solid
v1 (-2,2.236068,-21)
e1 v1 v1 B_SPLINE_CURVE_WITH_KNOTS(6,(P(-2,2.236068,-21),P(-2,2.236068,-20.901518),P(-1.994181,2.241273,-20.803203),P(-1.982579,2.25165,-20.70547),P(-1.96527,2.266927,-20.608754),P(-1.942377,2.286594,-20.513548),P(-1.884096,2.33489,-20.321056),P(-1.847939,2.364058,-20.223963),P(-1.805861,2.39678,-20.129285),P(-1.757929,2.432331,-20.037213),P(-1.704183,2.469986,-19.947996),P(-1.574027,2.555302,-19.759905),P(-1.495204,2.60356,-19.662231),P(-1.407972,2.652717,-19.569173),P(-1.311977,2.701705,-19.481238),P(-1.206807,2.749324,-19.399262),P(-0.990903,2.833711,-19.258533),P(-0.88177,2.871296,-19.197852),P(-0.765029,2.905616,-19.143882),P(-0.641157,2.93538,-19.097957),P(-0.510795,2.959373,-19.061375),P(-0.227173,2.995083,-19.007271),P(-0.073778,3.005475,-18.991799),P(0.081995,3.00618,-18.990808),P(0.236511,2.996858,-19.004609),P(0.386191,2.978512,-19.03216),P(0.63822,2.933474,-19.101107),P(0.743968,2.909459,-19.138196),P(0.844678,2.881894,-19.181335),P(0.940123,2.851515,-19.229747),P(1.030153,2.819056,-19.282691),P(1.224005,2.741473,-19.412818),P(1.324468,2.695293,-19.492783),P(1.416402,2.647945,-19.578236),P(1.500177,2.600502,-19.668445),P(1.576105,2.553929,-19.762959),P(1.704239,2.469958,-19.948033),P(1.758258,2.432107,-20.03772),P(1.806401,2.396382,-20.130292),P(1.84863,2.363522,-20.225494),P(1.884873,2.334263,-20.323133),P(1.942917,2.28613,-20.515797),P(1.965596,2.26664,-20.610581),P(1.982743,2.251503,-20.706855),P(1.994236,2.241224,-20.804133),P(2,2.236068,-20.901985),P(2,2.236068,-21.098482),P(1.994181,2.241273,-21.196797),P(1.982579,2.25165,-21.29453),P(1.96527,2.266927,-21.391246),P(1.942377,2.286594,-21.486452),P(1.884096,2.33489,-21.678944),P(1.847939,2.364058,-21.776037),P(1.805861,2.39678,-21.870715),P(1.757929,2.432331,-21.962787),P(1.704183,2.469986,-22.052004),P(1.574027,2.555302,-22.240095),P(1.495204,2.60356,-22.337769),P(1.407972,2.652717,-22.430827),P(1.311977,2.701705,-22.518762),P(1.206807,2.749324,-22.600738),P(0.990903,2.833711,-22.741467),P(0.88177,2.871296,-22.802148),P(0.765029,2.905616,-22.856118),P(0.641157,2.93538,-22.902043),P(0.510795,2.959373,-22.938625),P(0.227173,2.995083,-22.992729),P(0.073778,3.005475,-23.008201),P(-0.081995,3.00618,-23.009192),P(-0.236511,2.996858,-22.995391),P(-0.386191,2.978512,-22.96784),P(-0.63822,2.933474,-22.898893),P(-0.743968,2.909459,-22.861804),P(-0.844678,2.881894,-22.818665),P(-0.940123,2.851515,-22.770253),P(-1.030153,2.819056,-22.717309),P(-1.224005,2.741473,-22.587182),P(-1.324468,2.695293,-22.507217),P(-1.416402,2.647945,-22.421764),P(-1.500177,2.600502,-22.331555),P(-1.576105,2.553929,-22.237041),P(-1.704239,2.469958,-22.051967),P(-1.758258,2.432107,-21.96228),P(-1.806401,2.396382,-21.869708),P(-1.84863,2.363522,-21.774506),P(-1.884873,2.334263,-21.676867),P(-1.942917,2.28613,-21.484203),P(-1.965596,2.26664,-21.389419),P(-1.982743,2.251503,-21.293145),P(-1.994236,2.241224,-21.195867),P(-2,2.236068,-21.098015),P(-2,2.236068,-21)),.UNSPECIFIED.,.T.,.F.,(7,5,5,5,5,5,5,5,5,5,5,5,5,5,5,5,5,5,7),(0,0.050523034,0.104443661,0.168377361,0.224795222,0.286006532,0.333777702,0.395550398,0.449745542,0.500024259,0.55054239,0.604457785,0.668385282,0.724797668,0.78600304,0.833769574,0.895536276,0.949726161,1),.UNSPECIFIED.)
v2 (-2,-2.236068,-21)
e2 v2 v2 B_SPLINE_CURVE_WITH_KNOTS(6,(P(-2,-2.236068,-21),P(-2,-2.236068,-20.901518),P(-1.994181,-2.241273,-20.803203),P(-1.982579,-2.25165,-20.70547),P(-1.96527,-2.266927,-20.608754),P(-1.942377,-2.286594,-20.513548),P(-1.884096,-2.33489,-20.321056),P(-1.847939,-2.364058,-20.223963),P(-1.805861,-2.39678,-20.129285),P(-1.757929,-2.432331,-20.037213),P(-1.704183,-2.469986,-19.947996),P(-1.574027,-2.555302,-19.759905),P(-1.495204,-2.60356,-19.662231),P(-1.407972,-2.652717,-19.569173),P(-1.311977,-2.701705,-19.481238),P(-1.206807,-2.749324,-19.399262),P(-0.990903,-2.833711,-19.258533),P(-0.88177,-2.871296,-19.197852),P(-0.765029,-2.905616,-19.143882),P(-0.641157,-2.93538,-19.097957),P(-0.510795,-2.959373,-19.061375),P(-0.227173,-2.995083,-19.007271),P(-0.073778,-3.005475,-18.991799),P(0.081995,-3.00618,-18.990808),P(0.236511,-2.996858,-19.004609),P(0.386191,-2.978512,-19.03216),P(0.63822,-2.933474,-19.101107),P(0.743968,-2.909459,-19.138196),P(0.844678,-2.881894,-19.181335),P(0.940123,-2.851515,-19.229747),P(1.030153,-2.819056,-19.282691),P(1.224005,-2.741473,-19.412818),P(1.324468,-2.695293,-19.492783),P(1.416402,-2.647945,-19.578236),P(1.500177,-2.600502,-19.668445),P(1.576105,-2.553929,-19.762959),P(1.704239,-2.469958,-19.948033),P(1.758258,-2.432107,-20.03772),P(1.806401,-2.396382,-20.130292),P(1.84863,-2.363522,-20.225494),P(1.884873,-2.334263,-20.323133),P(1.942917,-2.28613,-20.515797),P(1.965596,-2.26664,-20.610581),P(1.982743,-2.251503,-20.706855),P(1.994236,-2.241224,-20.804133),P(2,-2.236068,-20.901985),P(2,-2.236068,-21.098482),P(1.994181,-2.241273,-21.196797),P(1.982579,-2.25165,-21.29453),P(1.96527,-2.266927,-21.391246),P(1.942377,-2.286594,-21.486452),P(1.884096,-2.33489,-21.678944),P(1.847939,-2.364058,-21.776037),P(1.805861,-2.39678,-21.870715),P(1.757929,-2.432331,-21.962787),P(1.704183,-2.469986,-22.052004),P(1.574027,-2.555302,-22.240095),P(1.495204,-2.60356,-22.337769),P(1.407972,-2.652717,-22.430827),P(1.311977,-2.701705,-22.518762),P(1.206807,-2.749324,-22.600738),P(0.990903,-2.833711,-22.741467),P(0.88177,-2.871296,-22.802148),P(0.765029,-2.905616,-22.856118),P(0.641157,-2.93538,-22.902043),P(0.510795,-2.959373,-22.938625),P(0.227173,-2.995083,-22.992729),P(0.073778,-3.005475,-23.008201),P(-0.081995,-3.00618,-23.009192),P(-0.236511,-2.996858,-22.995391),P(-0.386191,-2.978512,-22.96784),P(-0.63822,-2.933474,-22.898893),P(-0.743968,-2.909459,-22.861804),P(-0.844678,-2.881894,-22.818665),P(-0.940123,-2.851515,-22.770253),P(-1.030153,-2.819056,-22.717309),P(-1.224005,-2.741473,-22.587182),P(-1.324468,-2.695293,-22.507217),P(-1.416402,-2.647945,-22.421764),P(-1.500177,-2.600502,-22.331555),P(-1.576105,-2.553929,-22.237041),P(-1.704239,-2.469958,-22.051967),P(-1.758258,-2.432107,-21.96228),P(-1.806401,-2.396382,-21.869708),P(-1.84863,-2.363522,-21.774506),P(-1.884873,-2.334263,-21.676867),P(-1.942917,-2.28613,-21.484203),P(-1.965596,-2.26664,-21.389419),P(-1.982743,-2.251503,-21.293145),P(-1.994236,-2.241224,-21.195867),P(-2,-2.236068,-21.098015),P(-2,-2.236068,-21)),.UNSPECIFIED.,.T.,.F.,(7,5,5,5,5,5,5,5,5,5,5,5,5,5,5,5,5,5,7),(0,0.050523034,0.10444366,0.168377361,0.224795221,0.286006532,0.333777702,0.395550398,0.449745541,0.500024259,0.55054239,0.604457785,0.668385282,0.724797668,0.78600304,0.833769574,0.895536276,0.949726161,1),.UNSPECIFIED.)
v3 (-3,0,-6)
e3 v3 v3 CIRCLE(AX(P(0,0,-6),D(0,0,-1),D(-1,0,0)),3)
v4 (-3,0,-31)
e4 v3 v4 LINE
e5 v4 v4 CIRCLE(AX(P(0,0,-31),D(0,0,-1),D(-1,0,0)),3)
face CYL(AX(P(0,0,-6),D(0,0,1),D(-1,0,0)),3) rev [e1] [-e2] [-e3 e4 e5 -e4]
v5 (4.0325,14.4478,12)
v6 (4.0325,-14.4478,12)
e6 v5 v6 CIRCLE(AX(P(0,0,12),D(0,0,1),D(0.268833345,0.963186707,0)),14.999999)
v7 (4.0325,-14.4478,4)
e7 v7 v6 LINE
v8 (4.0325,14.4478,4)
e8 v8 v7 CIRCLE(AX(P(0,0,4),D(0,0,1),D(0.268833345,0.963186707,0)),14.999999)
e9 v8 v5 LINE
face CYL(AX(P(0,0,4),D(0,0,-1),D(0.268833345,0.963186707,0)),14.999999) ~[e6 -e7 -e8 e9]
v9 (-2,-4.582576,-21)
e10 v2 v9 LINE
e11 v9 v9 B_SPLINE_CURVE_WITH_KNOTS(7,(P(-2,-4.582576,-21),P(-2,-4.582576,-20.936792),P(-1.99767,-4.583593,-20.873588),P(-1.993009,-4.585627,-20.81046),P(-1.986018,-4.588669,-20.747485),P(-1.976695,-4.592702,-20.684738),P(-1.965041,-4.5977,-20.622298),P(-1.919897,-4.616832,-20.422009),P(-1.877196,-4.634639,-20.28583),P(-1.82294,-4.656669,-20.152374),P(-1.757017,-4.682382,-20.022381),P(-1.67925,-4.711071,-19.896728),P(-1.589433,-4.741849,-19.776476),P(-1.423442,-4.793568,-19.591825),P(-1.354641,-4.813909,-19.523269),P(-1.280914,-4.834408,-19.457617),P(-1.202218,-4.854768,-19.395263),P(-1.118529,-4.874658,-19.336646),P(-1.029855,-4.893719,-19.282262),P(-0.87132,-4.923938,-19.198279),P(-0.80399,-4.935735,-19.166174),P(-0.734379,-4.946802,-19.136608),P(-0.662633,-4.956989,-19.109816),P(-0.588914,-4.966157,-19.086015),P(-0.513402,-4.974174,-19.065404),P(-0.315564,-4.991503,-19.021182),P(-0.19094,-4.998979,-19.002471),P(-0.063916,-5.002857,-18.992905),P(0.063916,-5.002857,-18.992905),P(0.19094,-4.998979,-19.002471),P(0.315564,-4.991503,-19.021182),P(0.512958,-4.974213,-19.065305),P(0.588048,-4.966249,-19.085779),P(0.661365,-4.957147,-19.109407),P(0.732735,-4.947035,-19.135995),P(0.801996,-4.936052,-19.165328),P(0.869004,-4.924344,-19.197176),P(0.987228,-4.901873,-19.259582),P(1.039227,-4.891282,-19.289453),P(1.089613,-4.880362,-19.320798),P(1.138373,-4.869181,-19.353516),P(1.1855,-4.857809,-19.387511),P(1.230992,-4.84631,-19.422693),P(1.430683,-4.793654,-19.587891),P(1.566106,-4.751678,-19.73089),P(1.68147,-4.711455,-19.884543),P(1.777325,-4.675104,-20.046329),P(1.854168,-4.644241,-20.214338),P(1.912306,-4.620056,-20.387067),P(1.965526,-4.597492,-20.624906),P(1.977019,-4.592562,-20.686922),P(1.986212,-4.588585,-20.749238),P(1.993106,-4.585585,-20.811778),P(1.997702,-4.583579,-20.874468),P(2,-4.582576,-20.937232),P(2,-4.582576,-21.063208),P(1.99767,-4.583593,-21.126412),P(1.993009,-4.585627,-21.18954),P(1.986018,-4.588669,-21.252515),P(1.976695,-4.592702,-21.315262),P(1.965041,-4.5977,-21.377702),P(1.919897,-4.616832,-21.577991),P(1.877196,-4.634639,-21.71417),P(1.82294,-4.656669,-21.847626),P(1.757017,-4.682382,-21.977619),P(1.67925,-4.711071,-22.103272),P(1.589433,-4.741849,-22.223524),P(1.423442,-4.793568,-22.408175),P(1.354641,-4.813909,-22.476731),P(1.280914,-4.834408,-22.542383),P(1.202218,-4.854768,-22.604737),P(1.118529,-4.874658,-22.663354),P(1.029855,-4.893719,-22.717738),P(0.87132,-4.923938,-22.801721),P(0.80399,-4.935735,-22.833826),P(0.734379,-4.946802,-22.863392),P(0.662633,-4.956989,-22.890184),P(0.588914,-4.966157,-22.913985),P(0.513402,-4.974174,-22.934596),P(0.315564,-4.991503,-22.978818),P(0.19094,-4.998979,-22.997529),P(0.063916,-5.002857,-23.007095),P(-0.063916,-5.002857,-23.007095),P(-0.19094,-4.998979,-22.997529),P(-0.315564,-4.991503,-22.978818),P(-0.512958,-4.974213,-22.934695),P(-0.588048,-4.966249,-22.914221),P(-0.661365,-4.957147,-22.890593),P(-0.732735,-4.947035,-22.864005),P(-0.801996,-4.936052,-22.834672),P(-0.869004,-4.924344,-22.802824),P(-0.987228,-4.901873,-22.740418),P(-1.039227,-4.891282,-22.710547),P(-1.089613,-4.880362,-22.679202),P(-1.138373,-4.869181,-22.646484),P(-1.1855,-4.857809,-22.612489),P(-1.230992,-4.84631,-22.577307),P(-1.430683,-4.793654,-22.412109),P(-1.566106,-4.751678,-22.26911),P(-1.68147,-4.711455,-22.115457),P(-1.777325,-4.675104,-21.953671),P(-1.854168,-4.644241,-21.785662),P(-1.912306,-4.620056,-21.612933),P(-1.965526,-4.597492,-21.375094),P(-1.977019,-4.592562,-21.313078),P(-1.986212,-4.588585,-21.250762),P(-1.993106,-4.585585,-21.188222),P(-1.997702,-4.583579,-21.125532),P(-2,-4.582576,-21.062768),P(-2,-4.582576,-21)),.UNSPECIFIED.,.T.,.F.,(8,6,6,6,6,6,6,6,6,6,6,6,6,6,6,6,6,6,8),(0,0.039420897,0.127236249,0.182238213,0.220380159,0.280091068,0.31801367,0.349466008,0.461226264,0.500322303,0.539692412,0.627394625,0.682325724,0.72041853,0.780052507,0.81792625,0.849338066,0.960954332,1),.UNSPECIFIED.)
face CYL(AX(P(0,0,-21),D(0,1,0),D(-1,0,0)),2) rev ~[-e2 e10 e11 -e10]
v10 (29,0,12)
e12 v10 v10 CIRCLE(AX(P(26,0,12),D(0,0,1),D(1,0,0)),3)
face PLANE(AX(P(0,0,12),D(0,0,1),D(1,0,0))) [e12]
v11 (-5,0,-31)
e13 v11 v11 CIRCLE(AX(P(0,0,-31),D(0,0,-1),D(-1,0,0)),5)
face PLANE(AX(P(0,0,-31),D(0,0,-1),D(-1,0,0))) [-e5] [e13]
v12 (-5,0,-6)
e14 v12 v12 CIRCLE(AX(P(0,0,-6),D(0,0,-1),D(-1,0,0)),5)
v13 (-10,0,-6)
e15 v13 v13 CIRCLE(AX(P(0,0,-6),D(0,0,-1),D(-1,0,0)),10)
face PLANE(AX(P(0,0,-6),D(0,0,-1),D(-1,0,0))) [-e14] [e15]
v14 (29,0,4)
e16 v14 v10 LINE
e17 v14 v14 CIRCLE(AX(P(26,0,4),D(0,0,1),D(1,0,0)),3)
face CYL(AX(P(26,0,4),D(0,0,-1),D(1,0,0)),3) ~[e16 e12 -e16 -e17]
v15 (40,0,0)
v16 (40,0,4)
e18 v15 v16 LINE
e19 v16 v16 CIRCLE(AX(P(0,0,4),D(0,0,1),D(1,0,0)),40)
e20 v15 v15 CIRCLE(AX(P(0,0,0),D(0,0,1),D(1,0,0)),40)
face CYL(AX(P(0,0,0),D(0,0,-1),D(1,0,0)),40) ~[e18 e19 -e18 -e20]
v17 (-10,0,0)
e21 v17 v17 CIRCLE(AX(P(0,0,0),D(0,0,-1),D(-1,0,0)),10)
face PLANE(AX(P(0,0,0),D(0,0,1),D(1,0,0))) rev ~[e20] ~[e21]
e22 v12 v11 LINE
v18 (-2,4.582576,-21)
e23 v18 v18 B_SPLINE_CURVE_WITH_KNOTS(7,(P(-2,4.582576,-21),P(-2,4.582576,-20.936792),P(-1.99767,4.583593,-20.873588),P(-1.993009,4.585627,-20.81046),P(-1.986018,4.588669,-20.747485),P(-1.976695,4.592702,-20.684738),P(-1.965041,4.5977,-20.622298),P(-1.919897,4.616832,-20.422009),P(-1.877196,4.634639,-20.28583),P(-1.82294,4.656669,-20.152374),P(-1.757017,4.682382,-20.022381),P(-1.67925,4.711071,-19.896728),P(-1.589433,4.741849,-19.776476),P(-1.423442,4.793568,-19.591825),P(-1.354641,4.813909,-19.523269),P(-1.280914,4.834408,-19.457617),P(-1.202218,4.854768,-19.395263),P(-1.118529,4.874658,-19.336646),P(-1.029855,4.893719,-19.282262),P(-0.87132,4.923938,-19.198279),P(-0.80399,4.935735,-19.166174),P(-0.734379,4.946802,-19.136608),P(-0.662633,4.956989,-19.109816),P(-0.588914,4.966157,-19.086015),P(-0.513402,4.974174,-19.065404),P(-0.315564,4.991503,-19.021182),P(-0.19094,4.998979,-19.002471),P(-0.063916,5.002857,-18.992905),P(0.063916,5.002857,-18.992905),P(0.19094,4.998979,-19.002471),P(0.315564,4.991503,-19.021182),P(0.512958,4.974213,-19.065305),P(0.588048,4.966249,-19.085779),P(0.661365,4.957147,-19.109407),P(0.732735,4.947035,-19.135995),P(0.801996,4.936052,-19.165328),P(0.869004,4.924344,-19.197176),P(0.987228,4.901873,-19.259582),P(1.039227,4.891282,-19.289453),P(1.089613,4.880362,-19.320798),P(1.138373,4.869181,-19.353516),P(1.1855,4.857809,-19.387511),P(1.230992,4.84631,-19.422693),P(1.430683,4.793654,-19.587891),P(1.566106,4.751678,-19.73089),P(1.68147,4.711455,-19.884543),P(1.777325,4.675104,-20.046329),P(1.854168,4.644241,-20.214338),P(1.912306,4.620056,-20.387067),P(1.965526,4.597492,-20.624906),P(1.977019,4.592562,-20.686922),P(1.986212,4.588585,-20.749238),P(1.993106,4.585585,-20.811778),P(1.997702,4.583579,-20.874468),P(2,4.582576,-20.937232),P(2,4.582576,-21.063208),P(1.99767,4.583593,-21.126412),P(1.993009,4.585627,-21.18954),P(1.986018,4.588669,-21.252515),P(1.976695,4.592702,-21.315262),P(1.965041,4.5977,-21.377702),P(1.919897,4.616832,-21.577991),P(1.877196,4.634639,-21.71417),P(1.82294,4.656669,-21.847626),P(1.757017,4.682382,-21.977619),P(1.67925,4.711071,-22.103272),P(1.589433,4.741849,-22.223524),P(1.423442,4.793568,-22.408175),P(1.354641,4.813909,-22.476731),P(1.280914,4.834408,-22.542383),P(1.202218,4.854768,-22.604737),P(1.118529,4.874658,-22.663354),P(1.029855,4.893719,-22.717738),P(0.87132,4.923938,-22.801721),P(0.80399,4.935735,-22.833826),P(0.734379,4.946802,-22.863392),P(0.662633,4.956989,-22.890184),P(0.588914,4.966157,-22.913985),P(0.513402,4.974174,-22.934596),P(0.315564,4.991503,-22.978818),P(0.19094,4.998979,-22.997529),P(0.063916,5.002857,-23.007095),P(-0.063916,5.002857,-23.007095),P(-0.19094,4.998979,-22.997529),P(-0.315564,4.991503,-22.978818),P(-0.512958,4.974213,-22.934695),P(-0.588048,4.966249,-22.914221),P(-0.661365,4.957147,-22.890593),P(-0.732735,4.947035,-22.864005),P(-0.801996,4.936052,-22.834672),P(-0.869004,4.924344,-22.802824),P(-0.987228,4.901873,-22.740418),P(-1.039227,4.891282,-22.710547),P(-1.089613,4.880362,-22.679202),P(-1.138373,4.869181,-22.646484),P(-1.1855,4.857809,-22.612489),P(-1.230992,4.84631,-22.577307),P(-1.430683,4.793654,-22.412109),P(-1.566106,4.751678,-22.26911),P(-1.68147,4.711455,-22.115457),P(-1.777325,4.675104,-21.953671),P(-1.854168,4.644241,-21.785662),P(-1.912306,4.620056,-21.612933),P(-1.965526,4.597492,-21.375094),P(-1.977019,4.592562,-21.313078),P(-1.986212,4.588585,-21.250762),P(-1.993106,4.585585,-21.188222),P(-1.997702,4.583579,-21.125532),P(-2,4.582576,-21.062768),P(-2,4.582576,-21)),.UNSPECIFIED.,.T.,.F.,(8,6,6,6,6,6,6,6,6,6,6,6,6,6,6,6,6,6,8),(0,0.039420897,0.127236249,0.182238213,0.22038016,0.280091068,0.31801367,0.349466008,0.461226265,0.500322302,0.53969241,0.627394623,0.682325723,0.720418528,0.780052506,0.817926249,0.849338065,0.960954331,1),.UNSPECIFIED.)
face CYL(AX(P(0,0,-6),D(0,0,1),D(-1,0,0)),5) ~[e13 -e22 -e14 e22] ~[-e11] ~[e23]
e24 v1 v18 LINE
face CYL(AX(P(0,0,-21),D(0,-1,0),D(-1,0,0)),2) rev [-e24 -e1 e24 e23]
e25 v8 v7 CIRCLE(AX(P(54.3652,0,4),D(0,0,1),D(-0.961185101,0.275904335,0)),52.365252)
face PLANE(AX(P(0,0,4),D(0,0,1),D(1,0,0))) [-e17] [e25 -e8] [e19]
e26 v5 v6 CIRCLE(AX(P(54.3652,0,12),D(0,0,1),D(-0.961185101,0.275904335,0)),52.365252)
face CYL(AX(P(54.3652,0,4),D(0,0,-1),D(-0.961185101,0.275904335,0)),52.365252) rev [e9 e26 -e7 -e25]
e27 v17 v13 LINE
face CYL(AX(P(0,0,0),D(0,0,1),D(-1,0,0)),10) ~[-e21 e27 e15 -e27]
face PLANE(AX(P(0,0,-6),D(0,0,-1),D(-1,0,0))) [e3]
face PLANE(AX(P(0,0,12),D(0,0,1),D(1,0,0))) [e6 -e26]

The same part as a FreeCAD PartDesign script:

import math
import FreeCAD as App
import Part
import Sketcher
from FreeCAD import Vector
Q = App.Units.Quantity

doc = App.newDocument("Part")
body = doc.addObject("PartDesign::Body", "Body")

sketch1 = body.newObject("Sketcher::SketchObject", "Sketch")
sketch1.AttachmentSupport = (doc.getObject("XY_Plane"), [""])
sketch1.MapMode = "FlatFace"
sketch1.addGeometry(Part.Circle(Vector(0, 0, 0), Vector(0, 0, 1), 40), False)
sketch1.addConstraint([
    Sketcher.Constraint("Coincident", 0, 3, -1, 1),
    Sketcher.Constraint("Diameter", 0, Q("80 mm")),
])
pad1 = body.newObject("PartDesign::Pad", "Pad")
pad1.Profile = sketch1
pad1.Length = 4

sketch2 = body.newObject("Sketcher::SketchObject", "Sketch001")
sketch2.AttachmentSupport = (doc.getObject("XY_Plane"), [""])
sketch2.MapMode = "FlatFace"
sketch2.AttachmentOffset = App.Placement(Vector(0, 0, 4), App.Rotation())
sketch2.addGeometry([
    Part.ArcOfCircle(Part.Circle(Vector(54, 0, 0), Vector(0, 0, 1), 52), math.radians(164), math.radians(196)),
    Part.ArcOfCircle(Part.Circle(Vector(0, 0, 0), Vector(0, 0, 1), 15), math.radians(74), math.radians(286)),
], False)
sketch2.addConstraint([
    Sketcher.Constraint("Coincident", 0, 1, 1, 1),
    Sketcher.Constraint("Coincident", 1, 2, 0, 2),
    Sketcher.Constraint("Coincident", 1, 3, -1, 1),
    Sketcher.Constraint("PointOnObject", 0, 3, -1),
    Sketcher.Constraint("Radius", 1, Q("15 mm")),
    Sketcher.Constraint("Radius", 0, Q("52.3653 mm")),
    Sketcher.Constraint("DistanceX", -1, 1, 0, 3, Q("54.3652 mm")),
])
pad2 = body.newObject("PartDesign::Pad", "Pad001")
pad2.Profile = sketch2
pad2.Length = 8

sketch3 = body.newObject("Sketcher::SketchObject", "Sketch002")
sketch3.AttachmentSupport = (doc.getObject("XY_Plane"), [""])
sketch3.MapMode = "FlatFace"
sketch3.addGeometry(Part.Circle(Vector(0, 0, 0), Vector(0, 0, 1), 10), False)
sketch3.addConstraint([
    Sketcher.Constraint("Coincident", 0, 3, -1, 1),
    Sketcher.Constraint("Diameter", 0, Q("20 mm")),
])
pad3 = body.newObject("PartDesign::Pad", "Pad002")
pad3.Profile = sketch3
pad3.Length = 6
pad3.Reversed = True

sketch4 = body.newObject("Sketcher::SketchObject", "Sketch003")
sketch4.AttachmentSupport = (doc.getObject("XY_Plane"), [""])
sketch4.MapMode = "FlatFace"
sketch4.AttachmentOffset = App.Placement(Vector(0, 0, -6), App.Rotation())
sketch4.addGeometry([
    Part.Circle(Vector(0, 0, 0), Vector(0, 0, 1), 5),
    Part.Circle(Vector(0, 0, 0), Vector(0, 0, 1), 3),
], False)
sketch4.addConstraint([
    Sketcher.Constraint("Coincident", 0, 3, -1, 1),
    Sketcher.Constraint("Coincident", 1, 3, -1, 1),
    Sketcher.Constraint("Diameter", 0, Q("10 mm")),
    Sketcher.Constraint("Diameter", 1, Q("6 mm")),
])
pad4 = body.newObject("PartDesign::Pad", "Pad003")
pad4.Profile = sketch4
pad4.Length = 25
pad4.Reversed = True

sketch5 = body.newObject("Sketcher::SketchObject", "Sketch004")
sketch5.AttachmentSupport = (doc.getObject("XZ_Plane"), [""])
sketch5.MapMode = "FlatFace"
sketch5.addGeometry(Part.Circle(Vector(0, -21, 0), Vector(0, 0, 1), 2), False)
sketch5.addConstraint([
    Sketcher.Constraint("PointOnObject", 0, 3, -2),
    Sketcher.Constraint("Diameter", 0, Q("4 mm")),
    Sketcher.Constraint("DistanceY", 0, 3, -1, 1, Q("21 mm")),
])
pocket1 = body.newObject("PartDesign::Pocket", "Pocket")
pocket1.Profile = sketch5
pocket1.Length = 25
pocket1.Midplane = True

sketch6 = body.newObject("Sketcher::SketchObject", "Sketch005")
sketch6.AttachmentSupport = (doc.getObject("XY_Plane"), [""])
sketch6.MapMode = "FlatFace"
sketch6.AttachmentOffset = App.Placement(Vector(0, 0, 4), App.Rotation())
sketch6.addGeometry(Part.Circle(Vector(26, 0, 0), Vector(0, 0, 1), 3), False)
sketch6.addConstraint([
    Sketcher.Constraint("PointOnObject", 0, 3, -1),
    Sketcher.Constraint("Diameter", 0, Q("6 mm")),
    Sketcher.Constraint("DistanceX", -1, 1, 0, 3, Q("26 mm")),
])
pad5 = body.newObject("PartDesign::Pad", "Pad004")
pad5.Profile = sketch6
pad5.Length = 8

doc.recompute()
